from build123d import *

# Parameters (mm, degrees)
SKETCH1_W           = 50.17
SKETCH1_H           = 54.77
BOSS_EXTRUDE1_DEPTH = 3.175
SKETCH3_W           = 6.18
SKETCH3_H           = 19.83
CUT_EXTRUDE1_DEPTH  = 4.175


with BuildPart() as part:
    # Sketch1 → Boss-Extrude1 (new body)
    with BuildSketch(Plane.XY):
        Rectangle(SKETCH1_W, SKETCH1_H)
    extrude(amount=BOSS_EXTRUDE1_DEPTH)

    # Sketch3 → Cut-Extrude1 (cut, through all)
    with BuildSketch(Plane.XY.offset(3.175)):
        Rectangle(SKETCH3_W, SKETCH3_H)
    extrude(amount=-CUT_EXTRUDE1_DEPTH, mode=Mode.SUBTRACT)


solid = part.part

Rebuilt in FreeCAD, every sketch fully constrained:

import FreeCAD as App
import Part
import Sketcher
from FreeCAD import Vector
Q = App.Units.Quantity

doc = App.newDocument("Part")
body = doc.addObject("PartDesign::Body", "Body")

# Sketch on XY plane
sketch1 = body.newObject("Sketcher::SketchObject", "Sketch")
sketch1.AttachmentSupport = (doc.getObject("XY_Plane"), [""])
sketch1.MapMode = "FlatFace"
sketch1.addGeometry(Part.LineSegment(Vector(-25.085, 27.385, 0), Vector(-25.085, -27.385, 0)), False)
sketch1.addGeometry(Part.LineSegment(Vector(-25.085, -27.385, 0), Vector(25.085, -27.385, 0)), False)
sketch1.addGeometry(Part.LineSegment(Vector(25.085, -27.385, 0), Vector(25.085, 27.385, 0)), False)
sketch1.addGeometry(Part.LineSegment(Vector(25.085, 27.385, 0), Vector(-25.085, 27.385, 0)), False)
sketch1.addConstraint(Sketcher.Constraint("Coincident", 0, 2, 1, 1))
sketch1.addConstraint(Sketcher.Constraint("Coincident", 1, 2, 2, 1))
sketch1.addConstraint(Sketcher.Constraint("Coincident", 2, 2, 3, 1))
sketch1.addConstraint(Sketcher.Constraint("Coincident", 3, 2, 0, 1))
sketch1.addConstraint(Sketcher.Constraint("Vertical", 0))
sketch1.addConstraint(Sketcher.Constraint("Horizontal", 1))
sketch1.addConstraint(Sketcher.Constraint("Vertical", 2))
sketch1.addConstraint(Sketcher.Constraint("Horizontal", 3))
sketch1.addConstraint(Sketcher.Constraint("Symmetric", 0, 2, 2, 2, -1, 1))
sketch1.addConstraint(Sketcher.Constraint("DistanceX", 1, 1, 1, 2, 50.17))
sketch1.addConstraint(Sketcher.Constraint("DistanceY", 0, 2, 0, 1, 54.77))
pad1 = body.newObject("PartDesign::Pad", "Pad")
pad1.Profile = sketch1
pad1.Length = Q("0.125 in")

# Sketch on XY plane
sketch2 = body.newObject("Sketcher::SketchObject", "Sketch001")
sketch2.AttachmentSupport = (doc.getObject("XY_Plane"), [""])
sketch2.MapMode = "FlatFace"
sketch2.AttachmentOffset = App.Placement(Vector(0, 0, 0.125 * 25.4), App.Rotation())
sketch2.addGeometry(Part.LineSegment(Vector(-3.09, 9.915, 0), Vector(-3.09, -9.915, 0)), False)
sketch2.addGeometry(Part.LineSegment(Vector(-3.09, -9.915, 0), Vector(3.09, -9.915, 0)), False)
sketch2.addGeometry(Part.LineSegment(Vector(3.09, -9.915, 0), Vector(3.09, 9.915, 0)), False)
sketch2.addGeometry(Part.LineSegment(Vector(3.09, 9.915, 0), Vector(-3.09, 9.915, 0)), False)
sketch2.addConstraint(Sketcher.Constraint("Coincident", 0, 2, 1, 1))
sketch2.addConstraint(Sketcher.Constraint("Coincident", 1, 2, 2, 1))
sketch2.addConstraint(Sketcher.Constraint("Coincident", 2, 2, 3, 1))
sketch2.addConstraint(Sketcher.Constraint("Coincident", 3, 2, 0, 1))
sketch2.addConstraint(Sketcher.Constraint("Vertical", 0))
sketch2.addConstraint(Sketcher.Constraint("Horizontal", 1))
sketch2.addConstraint(Sketcher.Constraint("Vertical", 2))
sketch2.addConstraint(Sketcher.Constraint("Horizontal", 3))
sketch2.addConstraint(Sketcher.Constraint("Symmetric", 0, 2, 2, 2, -1, 1))
sketch2.addConstraint(Sketcher.Constraint("DistanceX", 1, 1, 1, 2, 6.18))
sketch2.addConstraint(Sketcher.Constraint("DistanceY", 0, 2, 0, 1, 19.83))
pocket1 = body.newObject("PartDesign::Pocket", "Pocket")
pocket1.Profile = sketch2
pocket1.Type = "ThroughAll"

doc.recompute()
